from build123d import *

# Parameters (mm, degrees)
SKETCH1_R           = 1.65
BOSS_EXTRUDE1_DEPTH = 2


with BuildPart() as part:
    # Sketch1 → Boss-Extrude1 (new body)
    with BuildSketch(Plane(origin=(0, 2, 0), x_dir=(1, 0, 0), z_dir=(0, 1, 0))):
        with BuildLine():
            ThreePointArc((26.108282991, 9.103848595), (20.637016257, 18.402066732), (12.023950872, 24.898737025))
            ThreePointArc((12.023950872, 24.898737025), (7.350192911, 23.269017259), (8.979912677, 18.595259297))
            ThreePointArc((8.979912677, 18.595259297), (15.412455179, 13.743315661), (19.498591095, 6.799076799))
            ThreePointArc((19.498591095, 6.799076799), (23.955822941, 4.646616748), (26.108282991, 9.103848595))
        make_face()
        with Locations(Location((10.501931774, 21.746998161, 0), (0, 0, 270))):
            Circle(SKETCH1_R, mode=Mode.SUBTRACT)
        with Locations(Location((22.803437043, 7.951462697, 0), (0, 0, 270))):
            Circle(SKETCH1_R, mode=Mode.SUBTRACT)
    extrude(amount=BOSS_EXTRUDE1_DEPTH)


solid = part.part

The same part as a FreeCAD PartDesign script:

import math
import FreeCAD as App
import Part
import Sketcher
Q = App.Units.Quantity

doc = App.newDocument("Part")
params = doc.addObject("Spreadsheet::Sheet", "Params")
for row, (alias, value) in enumerate([
    ("sketch1_diameter", "3.3 mm"),
    ("sketch1_radius", "3.5 mm"),
    ("sketch1_radius2", "27.65 mm"),
    ("pad1_length", "2 mm"),
], start=1):
    params.set(f"A{row}", alias)
    params.set(f"B{row}", "=" + value)
    params.setAlias(f"B{row}", alias)

body = doc.addObject("PartDesign::Body", "Body")

# Sketch on XZ plane
sketch1 = body.newObject("Sketcher::SketchObject", "Sketch")
sketch1.AttachmentSupport = (doc.getObject("XZ_Plane"), [""])
sketch1.MapMode = "FlatFace"
sketch1.AttachmentOffset = App.Placement(App.Vector(0, 0, -2), App.Rotation())
sketch1.addGeometry(Part.ArcOfCircle(Part.Circle(App.Vector(0, 0, 0), App.Vector(0, 0, 1), 27.65), math.radians(-64.223449), math.radians(-19.223449)), False)
sketch1.addGeometry(Part.ArcOfCircle(Part.Circle(App.Vector(10.501932, -21.746998, 0), App.Vector(0, 0, 1), 3.5), math.radians(115.776551), math.radians(295.776551)), False)
sketch1.addGeometry(Part.ArcOfCircle(Part.Circle(App.Vector(0, 0, 0), App.Vector(0, 0, 1), 20.65), math.radians(-64.223449), math.radians(-19.223449)), False)
sketch1.addGeometry(Part.ArcOfCircle(Part.Circle(App.Vector(22.803437, -7.951463, 0), App.Vector(0, 0, 1), 3.5), math.radians(-19.223449), math.radians(160.776551)), False)
sketch1.addGeometry(Part.Circle(App.Vector(22.803437, -7.951463, 0), App.Vector(0, 0, 1), 1.65), False)
sketch1.addGeometry(Part.Circle(App.Vector(10.501932, -21.746998, 0), App.Vector(0, 0, 1), 1.65), False)
sketch1.addConstraint(Sketcher.Constraint("Tangent", 0, 1, 1, 2))
sketch1.addConstraint(Sketcher.Constraint("Tangent", 1, 1, 2, 1))
sketch1.addConstraint(Sketcher.Constraint("Tangent", 2, 2, 3, 2))
sketch1.addConstraint(Sketcher.Constraint("Tangent", 3, 1, 0, 2))
sketch1.addConstraint(Sketcher.Constraint("Coincident", 0, 3, -1, 1))
sketch1.addConstraint(Sketcher.Constraint("Coincident", 2, 3, -1, 1))
sketch1.addConstraint(Sketcher.Constraint("Coincident", 4, 3, 3, 3))
sketch1.addConstraint(Sketcher.Constraint("Coincident", 5, 3, 1, 3))
sketch1.addConstraint(Sketcher.Constraint("Equal", 4, 5))
sketch1.addConstraint(Sketcher.Constraint("Diameter", 4, Q("3.3 mm")))
sketch1.addConstraint(Sketcher.Constraint("Radius", 1, Q("3.5 mm")))
sketch1.addConstraint(Sketcher.Constraint("Radius", 0, Q("27.65 mm")))
sketch1.addConstraint(Sketcher.Constraint("DistanceY", 1, 3, -1, 1, Q("21.746998 mm")))
sketch1.addConstraint(Sketcher.Constraint("DistanceX", -1, 1, 2, 2, Q("19.498591 mm")))
sketch1.setExpression("Constraints[9]", "Params.sketch1_diameter")
sketch1.setExpression("Constraints[10]", "Params.sketch1_radius")
sketch1.setExpression("Constraints[11]", "Params.sketch1_radius2")
pad1 = body.newObject("PartDesign::Pad", "Pad")
pad1.Profile = sketch1
pad1.setExpression("Length", "Params.pad1_length")
pad1.Reversed = True

doc.recompute()
